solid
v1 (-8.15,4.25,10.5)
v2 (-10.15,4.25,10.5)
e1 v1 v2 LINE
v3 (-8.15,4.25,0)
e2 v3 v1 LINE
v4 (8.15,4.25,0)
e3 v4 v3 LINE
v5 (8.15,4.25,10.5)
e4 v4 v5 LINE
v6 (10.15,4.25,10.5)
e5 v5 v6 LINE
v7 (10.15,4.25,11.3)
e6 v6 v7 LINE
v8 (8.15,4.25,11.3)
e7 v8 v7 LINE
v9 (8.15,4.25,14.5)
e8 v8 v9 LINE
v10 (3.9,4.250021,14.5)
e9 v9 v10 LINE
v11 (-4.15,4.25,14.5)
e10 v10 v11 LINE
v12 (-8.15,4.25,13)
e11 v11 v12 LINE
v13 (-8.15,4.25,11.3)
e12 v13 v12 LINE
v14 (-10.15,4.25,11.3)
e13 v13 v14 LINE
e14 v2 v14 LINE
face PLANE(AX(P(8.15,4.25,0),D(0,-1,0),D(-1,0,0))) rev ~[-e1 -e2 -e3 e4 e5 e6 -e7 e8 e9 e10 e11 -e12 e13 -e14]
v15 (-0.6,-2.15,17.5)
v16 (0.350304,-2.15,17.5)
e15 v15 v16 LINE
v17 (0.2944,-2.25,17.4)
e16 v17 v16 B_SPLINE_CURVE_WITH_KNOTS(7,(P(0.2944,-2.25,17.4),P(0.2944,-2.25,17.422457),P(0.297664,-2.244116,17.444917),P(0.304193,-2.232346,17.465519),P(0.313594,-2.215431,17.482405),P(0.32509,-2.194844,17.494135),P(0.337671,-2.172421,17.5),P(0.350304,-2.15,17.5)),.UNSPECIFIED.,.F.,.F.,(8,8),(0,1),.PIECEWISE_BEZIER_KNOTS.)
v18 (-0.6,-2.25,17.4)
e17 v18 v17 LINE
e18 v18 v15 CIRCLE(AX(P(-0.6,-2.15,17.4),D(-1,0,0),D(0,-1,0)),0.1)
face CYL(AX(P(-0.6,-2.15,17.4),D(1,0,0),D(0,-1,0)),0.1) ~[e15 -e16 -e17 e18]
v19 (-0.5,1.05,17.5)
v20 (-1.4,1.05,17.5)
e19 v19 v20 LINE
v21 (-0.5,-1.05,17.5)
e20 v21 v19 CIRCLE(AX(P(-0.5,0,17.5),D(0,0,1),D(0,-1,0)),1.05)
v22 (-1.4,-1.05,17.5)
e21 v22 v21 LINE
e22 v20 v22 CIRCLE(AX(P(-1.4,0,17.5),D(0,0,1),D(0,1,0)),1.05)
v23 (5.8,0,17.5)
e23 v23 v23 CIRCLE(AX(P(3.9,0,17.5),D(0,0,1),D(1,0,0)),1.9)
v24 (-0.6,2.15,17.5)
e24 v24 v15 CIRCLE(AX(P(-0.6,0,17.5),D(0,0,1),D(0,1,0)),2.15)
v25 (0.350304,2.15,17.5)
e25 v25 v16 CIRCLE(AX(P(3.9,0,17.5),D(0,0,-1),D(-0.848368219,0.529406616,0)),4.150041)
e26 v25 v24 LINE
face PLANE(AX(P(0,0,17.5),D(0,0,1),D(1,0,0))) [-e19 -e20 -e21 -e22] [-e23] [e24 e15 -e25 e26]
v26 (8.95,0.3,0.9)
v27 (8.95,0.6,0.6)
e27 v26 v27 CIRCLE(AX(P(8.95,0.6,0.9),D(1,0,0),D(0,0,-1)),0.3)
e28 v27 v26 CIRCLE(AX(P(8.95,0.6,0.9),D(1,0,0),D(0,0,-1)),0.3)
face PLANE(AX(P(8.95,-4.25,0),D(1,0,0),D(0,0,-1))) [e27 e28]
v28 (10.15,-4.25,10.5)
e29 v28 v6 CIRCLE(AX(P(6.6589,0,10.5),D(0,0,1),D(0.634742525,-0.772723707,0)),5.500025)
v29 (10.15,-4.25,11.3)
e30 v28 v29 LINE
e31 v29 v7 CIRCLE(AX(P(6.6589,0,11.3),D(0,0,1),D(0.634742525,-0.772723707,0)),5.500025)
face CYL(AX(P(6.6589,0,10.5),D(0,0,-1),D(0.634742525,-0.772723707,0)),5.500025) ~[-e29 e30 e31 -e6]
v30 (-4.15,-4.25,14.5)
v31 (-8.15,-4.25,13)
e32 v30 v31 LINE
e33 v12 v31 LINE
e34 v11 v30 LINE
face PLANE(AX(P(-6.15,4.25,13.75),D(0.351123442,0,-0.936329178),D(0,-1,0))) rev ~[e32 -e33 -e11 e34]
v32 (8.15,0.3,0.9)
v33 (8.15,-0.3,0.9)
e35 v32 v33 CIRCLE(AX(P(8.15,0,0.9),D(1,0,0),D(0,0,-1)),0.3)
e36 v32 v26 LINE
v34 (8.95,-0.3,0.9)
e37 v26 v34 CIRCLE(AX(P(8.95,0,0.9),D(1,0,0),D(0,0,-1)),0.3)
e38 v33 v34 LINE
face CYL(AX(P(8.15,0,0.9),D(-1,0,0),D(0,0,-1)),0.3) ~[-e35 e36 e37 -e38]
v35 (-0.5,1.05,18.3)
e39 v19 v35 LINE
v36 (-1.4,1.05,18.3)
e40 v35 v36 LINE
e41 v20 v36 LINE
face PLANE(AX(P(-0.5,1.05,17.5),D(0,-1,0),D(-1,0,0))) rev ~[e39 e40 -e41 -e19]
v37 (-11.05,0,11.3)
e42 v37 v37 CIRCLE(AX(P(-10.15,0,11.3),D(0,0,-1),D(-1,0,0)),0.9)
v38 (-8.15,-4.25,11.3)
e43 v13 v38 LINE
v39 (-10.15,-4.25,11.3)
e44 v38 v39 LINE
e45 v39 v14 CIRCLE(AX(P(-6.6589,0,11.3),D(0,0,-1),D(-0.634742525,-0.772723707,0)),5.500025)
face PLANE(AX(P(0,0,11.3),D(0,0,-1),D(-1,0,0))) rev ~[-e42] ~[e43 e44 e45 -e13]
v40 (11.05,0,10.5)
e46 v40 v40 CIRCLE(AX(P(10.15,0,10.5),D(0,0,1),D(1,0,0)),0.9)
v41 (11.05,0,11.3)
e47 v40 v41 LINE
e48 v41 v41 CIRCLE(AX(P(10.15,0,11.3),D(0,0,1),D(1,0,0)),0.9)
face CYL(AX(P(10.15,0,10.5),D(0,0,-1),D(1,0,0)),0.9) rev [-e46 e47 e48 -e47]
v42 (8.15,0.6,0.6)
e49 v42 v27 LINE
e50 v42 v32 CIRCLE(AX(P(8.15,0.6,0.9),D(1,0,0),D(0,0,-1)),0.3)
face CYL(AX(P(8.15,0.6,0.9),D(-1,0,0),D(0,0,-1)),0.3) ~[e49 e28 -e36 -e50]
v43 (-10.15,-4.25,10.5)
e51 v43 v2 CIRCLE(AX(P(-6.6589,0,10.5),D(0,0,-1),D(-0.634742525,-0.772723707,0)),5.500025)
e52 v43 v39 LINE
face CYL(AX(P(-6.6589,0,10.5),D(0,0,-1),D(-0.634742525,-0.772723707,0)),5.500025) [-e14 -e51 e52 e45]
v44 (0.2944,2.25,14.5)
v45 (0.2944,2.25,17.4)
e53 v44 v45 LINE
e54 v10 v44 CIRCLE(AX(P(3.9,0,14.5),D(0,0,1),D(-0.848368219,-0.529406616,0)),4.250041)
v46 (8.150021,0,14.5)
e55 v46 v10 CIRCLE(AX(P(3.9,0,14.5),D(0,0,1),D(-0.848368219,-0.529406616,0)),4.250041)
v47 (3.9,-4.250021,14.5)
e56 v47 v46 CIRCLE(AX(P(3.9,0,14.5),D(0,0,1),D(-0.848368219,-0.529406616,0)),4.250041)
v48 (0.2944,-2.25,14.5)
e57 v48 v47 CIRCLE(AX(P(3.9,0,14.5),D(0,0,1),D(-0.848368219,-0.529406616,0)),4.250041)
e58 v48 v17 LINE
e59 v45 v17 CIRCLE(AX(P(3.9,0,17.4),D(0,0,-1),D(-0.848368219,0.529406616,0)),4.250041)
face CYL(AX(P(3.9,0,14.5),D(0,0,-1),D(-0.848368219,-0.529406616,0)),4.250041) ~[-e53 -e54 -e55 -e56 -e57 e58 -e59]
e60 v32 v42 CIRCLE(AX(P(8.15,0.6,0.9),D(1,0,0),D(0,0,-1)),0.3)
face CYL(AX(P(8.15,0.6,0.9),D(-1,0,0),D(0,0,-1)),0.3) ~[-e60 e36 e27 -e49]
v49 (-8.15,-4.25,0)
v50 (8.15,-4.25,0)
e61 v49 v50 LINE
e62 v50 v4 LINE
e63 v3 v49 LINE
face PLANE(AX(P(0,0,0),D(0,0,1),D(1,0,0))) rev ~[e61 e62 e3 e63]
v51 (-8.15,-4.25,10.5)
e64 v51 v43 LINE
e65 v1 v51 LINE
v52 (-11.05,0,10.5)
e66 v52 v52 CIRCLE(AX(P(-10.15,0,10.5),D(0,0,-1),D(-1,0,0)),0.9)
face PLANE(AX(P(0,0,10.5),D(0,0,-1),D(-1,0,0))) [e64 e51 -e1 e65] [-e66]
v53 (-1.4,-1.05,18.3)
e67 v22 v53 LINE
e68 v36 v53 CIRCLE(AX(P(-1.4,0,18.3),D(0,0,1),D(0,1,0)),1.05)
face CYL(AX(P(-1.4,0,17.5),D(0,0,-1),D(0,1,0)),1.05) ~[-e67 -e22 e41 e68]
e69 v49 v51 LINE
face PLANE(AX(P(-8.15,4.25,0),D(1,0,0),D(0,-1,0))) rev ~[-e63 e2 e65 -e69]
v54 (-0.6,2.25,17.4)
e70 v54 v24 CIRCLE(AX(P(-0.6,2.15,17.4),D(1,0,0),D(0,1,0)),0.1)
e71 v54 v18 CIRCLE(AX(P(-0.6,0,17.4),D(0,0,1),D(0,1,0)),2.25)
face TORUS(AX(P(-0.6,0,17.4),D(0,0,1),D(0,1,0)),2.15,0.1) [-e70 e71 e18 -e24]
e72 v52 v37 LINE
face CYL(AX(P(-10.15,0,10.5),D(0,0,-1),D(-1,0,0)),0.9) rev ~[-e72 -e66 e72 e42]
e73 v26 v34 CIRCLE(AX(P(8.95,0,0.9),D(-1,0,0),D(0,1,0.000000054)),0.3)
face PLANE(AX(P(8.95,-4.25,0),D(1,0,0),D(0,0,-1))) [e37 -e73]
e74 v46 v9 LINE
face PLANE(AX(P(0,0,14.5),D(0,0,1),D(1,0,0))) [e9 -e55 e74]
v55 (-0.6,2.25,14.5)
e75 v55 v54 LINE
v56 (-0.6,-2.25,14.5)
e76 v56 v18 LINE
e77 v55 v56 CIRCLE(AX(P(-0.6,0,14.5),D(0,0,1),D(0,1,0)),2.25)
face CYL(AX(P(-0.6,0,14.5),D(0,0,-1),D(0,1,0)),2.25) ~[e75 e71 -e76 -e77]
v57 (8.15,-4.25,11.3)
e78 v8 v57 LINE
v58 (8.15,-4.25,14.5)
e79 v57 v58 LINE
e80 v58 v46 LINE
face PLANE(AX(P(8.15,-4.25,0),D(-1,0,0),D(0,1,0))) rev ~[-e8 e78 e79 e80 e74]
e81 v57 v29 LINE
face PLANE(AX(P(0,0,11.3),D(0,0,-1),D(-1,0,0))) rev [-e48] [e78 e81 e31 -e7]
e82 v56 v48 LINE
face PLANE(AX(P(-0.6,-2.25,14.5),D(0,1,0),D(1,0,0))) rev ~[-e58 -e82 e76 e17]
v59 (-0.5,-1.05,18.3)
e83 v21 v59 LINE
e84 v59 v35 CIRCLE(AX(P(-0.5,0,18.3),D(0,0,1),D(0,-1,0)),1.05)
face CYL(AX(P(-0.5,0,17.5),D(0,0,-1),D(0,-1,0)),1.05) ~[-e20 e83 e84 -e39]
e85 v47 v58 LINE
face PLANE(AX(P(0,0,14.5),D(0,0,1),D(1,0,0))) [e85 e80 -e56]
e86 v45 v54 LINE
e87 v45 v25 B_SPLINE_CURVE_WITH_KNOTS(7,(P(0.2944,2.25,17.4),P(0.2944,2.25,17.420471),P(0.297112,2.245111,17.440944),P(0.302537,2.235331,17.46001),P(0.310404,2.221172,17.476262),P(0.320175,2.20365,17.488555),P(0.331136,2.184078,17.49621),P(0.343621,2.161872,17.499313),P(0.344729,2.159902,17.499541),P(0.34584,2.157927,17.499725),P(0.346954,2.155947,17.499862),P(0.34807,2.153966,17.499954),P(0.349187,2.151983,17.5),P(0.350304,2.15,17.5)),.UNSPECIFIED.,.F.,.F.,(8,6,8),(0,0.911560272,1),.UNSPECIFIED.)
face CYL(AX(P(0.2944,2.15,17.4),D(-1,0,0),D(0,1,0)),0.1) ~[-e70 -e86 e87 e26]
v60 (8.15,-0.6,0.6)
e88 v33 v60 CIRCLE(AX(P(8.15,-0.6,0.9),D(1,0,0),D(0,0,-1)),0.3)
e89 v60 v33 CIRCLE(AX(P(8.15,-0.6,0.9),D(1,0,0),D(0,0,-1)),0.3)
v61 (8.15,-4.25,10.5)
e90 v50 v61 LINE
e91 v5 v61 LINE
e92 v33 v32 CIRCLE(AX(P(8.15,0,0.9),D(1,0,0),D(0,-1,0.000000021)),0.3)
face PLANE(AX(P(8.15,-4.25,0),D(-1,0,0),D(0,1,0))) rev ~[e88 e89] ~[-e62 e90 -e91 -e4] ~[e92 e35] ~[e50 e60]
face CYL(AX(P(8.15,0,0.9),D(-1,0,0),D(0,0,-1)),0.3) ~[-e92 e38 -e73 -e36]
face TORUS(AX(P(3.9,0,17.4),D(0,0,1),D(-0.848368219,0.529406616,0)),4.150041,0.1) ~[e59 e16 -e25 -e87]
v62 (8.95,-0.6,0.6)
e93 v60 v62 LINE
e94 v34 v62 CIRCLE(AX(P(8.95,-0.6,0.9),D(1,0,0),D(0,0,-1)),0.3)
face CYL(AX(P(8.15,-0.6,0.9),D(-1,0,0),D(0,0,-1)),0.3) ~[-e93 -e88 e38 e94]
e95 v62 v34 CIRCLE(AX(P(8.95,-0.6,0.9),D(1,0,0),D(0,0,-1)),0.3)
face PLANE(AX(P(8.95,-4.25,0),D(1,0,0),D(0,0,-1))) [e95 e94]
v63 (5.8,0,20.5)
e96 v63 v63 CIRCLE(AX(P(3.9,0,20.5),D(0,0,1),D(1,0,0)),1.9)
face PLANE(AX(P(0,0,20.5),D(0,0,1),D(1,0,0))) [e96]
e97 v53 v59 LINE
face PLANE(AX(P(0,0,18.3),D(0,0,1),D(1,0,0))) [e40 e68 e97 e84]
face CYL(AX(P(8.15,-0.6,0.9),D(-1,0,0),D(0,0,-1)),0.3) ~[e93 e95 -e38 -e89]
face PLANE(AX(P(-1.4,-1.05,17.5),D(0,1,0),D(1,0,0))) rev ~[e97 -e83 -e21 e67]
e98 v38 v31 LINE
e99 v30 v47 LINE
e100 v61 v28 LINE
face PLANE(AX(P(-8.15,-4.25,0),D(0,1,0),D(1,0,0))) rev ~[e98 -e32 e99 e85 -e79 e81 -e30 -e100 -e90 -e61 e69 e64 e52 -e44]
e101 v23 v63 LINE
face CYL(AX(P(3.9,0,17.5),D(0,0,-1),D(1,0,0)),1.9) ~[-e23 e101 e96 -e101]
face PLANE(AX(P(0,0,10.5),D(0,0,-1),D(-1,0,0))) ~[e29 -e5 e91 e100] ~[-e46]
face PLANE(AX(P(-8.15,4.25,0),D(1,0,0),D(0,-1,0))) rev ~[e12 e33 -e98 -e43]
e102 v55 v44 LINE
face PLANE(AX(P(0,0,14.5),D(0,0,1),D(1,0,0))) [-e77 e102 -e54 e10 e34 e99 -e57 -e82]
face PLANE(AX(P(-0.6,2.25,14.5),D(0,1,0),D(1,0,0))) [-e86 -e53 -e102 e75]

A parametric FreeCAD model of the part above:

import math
import FreeCAD as App
import Part
import Sketcher
from FreeCAD import Vector


def edges_at(feature, points):
    """Names of the edges that pass closest to the given points."""
    edges = feature.Shape.Edges
    near = lambda p: min(range(len(edges)), key=lambda i: edges[i].distToShape(Part.Vertex(*p))[0])
    return sorted({f"Edge{near(p) + 1}" for p in points})


def add_polygon(sketch, points):
    """Adds a closed chain of lines whose ends are joined by coincident constraints."""
    first, n = sketch.GeometryCount, len(points)
    for a, b in zip(points, points[1:] + points[:1]):
        sketch.addGeometry(Part.LineSegment(App.Vector(*a, 0), App.Vector(*b, 0)), False)
    for i in range(n):
        sketch.addConstraint(Sketcher.Constraint("Coincident", first + i, 2, first + (i + 1) % n, 1))

doc = App.newDocument("Part")
body = doc.addObject("PartDesign::Body", "Body")

sketch1 = body.newObject("Sketcher::SketchObject", "Sketch")
sketch1.AttachmentSupport = (doc.getObject("XY_Plane"), [""])
sketch1.MapMode = "FlatFace"
add_polygon(sketch1, [(-8.15, 4.25), (-8.15, -4.25), (8.15, -4.25), (8.15, 4.25)])
sketch1.addConstraint([
    Sketcher.Constraint("Vertical", 0),
    Sketcher.Constraint("Horizontal", 1),
    Sketcher.Constraint("Vertical", 2),
    Sketcher.Constraint("Horizontal", 3),
    Sketcher.Constraint("Symmetric", 0, 2, 2, 2, -1, 1),
    Sketcher.Constraint("DistanceX", 1, 1, 1, 2, 16.3),
    Sketcher.Constraint("DistanceY", 0, 2, 0, 1, 8.5),
])
pad1 = body.newObject("PartDesign::Pad", "Pad")
pad1.Profile = sketch1
pad1.Length = 14.5

sketch2 = body.newObject("Sketcher::SketchObject", "Sketch001")
sketch2.AttachmentSupport = (doc.getObject("XY_Plane"), [""])
sketch2.MapMode = "FlatFace"
sketch2.AttachmentOffset = App.Placement(Vector(0, 0, 10.5), App.Rotation())
sketch2.addGeometry([
    Part.LineSegment(Vector(-10.15, 4.25, 0), Vector(-8.15, 4.25, 0)),
    Part.LineSegment(Vector(-8.15, 4.25, 0), Vector(-8.15, -4.25, 0)),
    Part.LineSegment(Vector(-8.15, -4.25, 0), Vector(-10.15, -4.25, 0)),
    Part.ArcOfCircle(Part.Circle(Vector(-6.6589, 0, 0), Vector(0, 0, 1), 5.500025), math.radians(129.400891), math.radians(230.599109)),
    Part.Circle(Vector(-10.15, 0, 0), Vector(0, 0, 1), 0.9),
], False)
sketch2.addConstraint([
    Sketcher.Constraint("Coincident", 0, 2, 1, 1),
    Sketcher.Constraint("Coincident", 1, 2, 2, 1),
    Sketcher.Constraint("Coincident", 2, 2, 3, 2),
    Sketcher.Constraint("Coincident", 3, 1, 0, 1),
    Sketcher.Constraint("Horizontal", 0),
    Sketcher.Constraint("Vertical", 1),
    Sketcher.Constraint("Horizontal", 2),
    Sketcher.Constraint("Symmetric", 2, 2, 3, 1, -1),
    Sketcher.Constraint("PointOnObject", 4, 3, -1),
    Sketcher.Constraint("Vertical", 4, 3, 2, 2),
    Sketcher.Constraint("Diameter", 4, 1.8),
    Sketcher.Constraint("Radius", 3, 5.5),
    Sketcher.Constraint("DistanceX", 0, 1, 0, 2, 2.0),
    Sketcher.Constraint("DistanceY", 1, 2, 1, 1, 8.5),
    Sketcher.Constraint("DistanceX", 4, 3, -1, 1, 10.15),
])
pad2 = body.newObject("PartDesign::Pad", "Pad001")
pad2.Profile = sketch2
pad2.Length = 0.8
doc.recompute()

mirrored = body.newObject("PartDesign::Mirrored", "Mirrored")
mirrored.Originals = [pad2]
mirrored.MirrorPlane = (doc.getObject("YZ_Plane"), [""])
body.Tip = mirrored

sketch3 = body.newObject("Sketcher::SketchObject", "Sketch002")
sketch3.AttachmentSupport = (doc.getObject("YZ_Plane"), [""])
sketch3.MapMode = "FlatFace"
sketch3.AttachmentOffset = App.Placement(Vector(0, 0, 8.15), App.Rotation())
sketch3.addGeometry([
    Part.ArcOfCircle(Part.Circle(Vector(0, 0.9, 0), Vector(0, 0, 1), 0.3), math.radians(179.999999), math.radians(360.000003)),
    Part.ArcOfCircle(Part.Circle(Vector(0, 0.9, 0), Vector(0, 0, 1), 0.3), math.radians(0.000003), math.radians(179.999999)),
    Part.Circle(Vector(-0.6, 0.9, 0), Vector(0, 0, 1), 0.3),
    Part.Circle(Vector(0.6, 0.9, 0), Vector(0, 0, 1), 0.3),
], False)
sketch3.addConstraint([
    Sketcher.Constraint("Tangent", 0, 1, 1, 2),
    Sketcher.Constraint("Coincident", 1, 1, 0, 2),
    Sketcher.Constraint("Equal", 1, 2),
    Sketcher.Constraint("Equal", 2, 3),
    Sketcher.Constraint("Symmetric", 2, 3, 3, 3, -2),
    Sketcher.Constraint("Symmetric", 0, 1, 1, 1, -2),
    Sketcher.Constraint("Horizontal", 1, 3, 2, 3),
    Sketcher.Constraint("Horizontal", 3, 3, 0, 1),
    Sketcher.Constraint("Diameter", 2, 0.6),
    Sketcher.Constraint("DistanceY", -1, 1, 0, 3, 0.9),
    Sketcher.Constraint("DistanceX", 2, 3, -1, 1, 0.6),
])
pad3 = body.newObject("PartDesign::Pad", "Pad002")
pad3.Profile = sketch3
pad3.Length = 0.8
doc.recompute()

chamfer = body.newObject("PartDesign::Chamfer", "Chamfer")
chamfer.Base = (pad3, edges_at(pad3, [(-8.15, 0, 14.5)]))
chamfer.ChamferType = "Two distances"
chamfer.Size = 4
chamfer.Size2 = 1.5

sketch4 = body.newObject("Sketcher::SketchObject", "Sketch003")
sketch4.AttachmentSupport = (doc.getObject("XY_Plane"), [""])
sketch4.MapMode = "FlatFace"
sketch4.AttachmentOffset = App.Placement(Vector(0, 0, 14.5), App.Rotation())
sketch4.addGeometry([
    Part.LineSegment(Vector(-0.6, -2.25, 0), Vector(0.2944, -2.25, 0)),
    Part.ArcOfCircle(Part.Circle(Vector(3.9, 0, 0), Vector(0, 0, 1), 4.250041), math.radians(-148.034629), math.radians(148.034629)),
    Part.LineSegment(Vector(0.2944, 2.25, 0), Vector(-0.6, 2.25, 0)),
    Part.ArcOfCircle(Part.Circle(Vector(-0.6, 0, 0), Vector(0, 0, 1), 2.25), math.radians(90), math.radians(270)),
], False)
sketch4.addConstraint([
    Sketcher.Constraint("Coincident", 0, 2, 1, 1),
    Sketcher.Constraint("Coincident", 1, 2, 2, 1),
    Sketcher.Constraint("Tangent", 2, 2, 3, 1),
    Sketcher.Constraint("Tangent", 3, 2, 0, 1),
    Sketcher.Constraint("Horizontal", 0),
    Sketcher.Constraint("Horizontal", 2),
    Sketcher.Constraint("Symmetric", 0, 2, 1, 2, -1),
    Sketcher.Constraint("Radius", 3, 2.25),
    Sketcher.Constraint("DistanceX", 3, 3, 1, 3, 4.5),
    Sketcher.Constraint("Radius", 1, 4.25),
    Sketcher.Constraint("DistanceX", -1, 1, 1, 3, 3.9),
])
pad4 = body.newObject("PartDesign::Pad", "Pad003")
pad4.Profile = sketch4
pad4.Length = 3

sketch5 = body.newObject("Sketcher::SketchObject", "Sketch004")
sketch5.AttachmentSupport = (doc.getObject("XY_Plane"), [""])
sketch5.MapMode = "FlatFace"
sketch5.AttachmentOffset = App.Placement(Vector(0, 0, 17.5), App.Rotation())
sketch5.addGeometry(Part.Circle(Vector(3.9, 0, 0), Vector(0, 0, 1), 1.9), False)
sketch5.addConstraint([
    Sketcher.Constraint("PointOnObject", 0, 3, -1),
    Sketcher.Constraint("Diameter", 0, 3.8),
    Sketcher.Constraint("DistanceX", -1, 1, 0, 3, 3.9),
])
pad5 = body.newObject("PartDesign::Pad", "Pad004")
pad5.Profile = sketch5
pad5.Length = 3

sketch6 = body.newObject("Sketcher::SketchObject", "Sketch005")
sketch6.AttachmentSupport = (doc.getObject("XY_Plane"), [""])
sketch6.MapMode = "FlatFace"
sketch6.AttachmentOffset = App.Placement(Vector(0, 0, 17.5), App.Rotation())
sketch6.addGeometry([
    Part.ArcOfCircle(Part.Circle(Vector(-1.4, 0, 0), Vector(0, 0, 1), 1.05), math.radians(90), math.radians(270)),
    Part.LineSegment(Vector(-1.4, -1.05, 0), Vector(-0.5, -1.05, 0)),
    Part.ArcOfCircle(Part.Circle(Vector(-0.5, 0, 0), Vector(0, 0, 1), 1.05), math.radians(-90), math.radians(90)),
    Part.LineSegment(Vector(-0.5, 1.05, 0), Vector(-1.4, 1.05, 0)),
], False)
sketch6.addConstraint([
    Sketcher.Constraint("Tangent", 0, 2, 1, 1),
    Sketcher.Constraint("Tangent", 1, 2, 2, 1),
    Sketcher.Constraint("Tangent", 2, 2, 3, 1),
    Sketcher.Constraint("Tangent", 3, 2, 0, 1),
    Sketcher.Constraint("Horizontal", 1),
    Sketcher.Constraint("Horizontal", 3),
    Sketcher.Constraint("PointOnObject", 0, 3, -1),
    Sketcher.Constraint("Radius", 0, 1.05),
    Sketcher.Constraint("DistanceX", 1, 1, 1, 2, 0.9),
    Sketcher.Constraint("DistanceX", 0, 3, -1, 1, 1.4),
])
pad6 = body.newObject("PartDesign::Pad", "Pad005")
pad6.Profile = sketch6
pad6.Length = 0.8
doc.recompute()

fillet = body.newObject("PartDesign::Fillet", "Fillet")
fillet.Base = (pad6, edges_at(pad6, [
    (8.15, 0, 17.5),
    (-2.85, 0, 17.5),
    (-0.153, 2.25, 17.5),
    (-0.153, -2.25, 17.5),
]))
fillet.Radius = 0.1

doc.recompute()
